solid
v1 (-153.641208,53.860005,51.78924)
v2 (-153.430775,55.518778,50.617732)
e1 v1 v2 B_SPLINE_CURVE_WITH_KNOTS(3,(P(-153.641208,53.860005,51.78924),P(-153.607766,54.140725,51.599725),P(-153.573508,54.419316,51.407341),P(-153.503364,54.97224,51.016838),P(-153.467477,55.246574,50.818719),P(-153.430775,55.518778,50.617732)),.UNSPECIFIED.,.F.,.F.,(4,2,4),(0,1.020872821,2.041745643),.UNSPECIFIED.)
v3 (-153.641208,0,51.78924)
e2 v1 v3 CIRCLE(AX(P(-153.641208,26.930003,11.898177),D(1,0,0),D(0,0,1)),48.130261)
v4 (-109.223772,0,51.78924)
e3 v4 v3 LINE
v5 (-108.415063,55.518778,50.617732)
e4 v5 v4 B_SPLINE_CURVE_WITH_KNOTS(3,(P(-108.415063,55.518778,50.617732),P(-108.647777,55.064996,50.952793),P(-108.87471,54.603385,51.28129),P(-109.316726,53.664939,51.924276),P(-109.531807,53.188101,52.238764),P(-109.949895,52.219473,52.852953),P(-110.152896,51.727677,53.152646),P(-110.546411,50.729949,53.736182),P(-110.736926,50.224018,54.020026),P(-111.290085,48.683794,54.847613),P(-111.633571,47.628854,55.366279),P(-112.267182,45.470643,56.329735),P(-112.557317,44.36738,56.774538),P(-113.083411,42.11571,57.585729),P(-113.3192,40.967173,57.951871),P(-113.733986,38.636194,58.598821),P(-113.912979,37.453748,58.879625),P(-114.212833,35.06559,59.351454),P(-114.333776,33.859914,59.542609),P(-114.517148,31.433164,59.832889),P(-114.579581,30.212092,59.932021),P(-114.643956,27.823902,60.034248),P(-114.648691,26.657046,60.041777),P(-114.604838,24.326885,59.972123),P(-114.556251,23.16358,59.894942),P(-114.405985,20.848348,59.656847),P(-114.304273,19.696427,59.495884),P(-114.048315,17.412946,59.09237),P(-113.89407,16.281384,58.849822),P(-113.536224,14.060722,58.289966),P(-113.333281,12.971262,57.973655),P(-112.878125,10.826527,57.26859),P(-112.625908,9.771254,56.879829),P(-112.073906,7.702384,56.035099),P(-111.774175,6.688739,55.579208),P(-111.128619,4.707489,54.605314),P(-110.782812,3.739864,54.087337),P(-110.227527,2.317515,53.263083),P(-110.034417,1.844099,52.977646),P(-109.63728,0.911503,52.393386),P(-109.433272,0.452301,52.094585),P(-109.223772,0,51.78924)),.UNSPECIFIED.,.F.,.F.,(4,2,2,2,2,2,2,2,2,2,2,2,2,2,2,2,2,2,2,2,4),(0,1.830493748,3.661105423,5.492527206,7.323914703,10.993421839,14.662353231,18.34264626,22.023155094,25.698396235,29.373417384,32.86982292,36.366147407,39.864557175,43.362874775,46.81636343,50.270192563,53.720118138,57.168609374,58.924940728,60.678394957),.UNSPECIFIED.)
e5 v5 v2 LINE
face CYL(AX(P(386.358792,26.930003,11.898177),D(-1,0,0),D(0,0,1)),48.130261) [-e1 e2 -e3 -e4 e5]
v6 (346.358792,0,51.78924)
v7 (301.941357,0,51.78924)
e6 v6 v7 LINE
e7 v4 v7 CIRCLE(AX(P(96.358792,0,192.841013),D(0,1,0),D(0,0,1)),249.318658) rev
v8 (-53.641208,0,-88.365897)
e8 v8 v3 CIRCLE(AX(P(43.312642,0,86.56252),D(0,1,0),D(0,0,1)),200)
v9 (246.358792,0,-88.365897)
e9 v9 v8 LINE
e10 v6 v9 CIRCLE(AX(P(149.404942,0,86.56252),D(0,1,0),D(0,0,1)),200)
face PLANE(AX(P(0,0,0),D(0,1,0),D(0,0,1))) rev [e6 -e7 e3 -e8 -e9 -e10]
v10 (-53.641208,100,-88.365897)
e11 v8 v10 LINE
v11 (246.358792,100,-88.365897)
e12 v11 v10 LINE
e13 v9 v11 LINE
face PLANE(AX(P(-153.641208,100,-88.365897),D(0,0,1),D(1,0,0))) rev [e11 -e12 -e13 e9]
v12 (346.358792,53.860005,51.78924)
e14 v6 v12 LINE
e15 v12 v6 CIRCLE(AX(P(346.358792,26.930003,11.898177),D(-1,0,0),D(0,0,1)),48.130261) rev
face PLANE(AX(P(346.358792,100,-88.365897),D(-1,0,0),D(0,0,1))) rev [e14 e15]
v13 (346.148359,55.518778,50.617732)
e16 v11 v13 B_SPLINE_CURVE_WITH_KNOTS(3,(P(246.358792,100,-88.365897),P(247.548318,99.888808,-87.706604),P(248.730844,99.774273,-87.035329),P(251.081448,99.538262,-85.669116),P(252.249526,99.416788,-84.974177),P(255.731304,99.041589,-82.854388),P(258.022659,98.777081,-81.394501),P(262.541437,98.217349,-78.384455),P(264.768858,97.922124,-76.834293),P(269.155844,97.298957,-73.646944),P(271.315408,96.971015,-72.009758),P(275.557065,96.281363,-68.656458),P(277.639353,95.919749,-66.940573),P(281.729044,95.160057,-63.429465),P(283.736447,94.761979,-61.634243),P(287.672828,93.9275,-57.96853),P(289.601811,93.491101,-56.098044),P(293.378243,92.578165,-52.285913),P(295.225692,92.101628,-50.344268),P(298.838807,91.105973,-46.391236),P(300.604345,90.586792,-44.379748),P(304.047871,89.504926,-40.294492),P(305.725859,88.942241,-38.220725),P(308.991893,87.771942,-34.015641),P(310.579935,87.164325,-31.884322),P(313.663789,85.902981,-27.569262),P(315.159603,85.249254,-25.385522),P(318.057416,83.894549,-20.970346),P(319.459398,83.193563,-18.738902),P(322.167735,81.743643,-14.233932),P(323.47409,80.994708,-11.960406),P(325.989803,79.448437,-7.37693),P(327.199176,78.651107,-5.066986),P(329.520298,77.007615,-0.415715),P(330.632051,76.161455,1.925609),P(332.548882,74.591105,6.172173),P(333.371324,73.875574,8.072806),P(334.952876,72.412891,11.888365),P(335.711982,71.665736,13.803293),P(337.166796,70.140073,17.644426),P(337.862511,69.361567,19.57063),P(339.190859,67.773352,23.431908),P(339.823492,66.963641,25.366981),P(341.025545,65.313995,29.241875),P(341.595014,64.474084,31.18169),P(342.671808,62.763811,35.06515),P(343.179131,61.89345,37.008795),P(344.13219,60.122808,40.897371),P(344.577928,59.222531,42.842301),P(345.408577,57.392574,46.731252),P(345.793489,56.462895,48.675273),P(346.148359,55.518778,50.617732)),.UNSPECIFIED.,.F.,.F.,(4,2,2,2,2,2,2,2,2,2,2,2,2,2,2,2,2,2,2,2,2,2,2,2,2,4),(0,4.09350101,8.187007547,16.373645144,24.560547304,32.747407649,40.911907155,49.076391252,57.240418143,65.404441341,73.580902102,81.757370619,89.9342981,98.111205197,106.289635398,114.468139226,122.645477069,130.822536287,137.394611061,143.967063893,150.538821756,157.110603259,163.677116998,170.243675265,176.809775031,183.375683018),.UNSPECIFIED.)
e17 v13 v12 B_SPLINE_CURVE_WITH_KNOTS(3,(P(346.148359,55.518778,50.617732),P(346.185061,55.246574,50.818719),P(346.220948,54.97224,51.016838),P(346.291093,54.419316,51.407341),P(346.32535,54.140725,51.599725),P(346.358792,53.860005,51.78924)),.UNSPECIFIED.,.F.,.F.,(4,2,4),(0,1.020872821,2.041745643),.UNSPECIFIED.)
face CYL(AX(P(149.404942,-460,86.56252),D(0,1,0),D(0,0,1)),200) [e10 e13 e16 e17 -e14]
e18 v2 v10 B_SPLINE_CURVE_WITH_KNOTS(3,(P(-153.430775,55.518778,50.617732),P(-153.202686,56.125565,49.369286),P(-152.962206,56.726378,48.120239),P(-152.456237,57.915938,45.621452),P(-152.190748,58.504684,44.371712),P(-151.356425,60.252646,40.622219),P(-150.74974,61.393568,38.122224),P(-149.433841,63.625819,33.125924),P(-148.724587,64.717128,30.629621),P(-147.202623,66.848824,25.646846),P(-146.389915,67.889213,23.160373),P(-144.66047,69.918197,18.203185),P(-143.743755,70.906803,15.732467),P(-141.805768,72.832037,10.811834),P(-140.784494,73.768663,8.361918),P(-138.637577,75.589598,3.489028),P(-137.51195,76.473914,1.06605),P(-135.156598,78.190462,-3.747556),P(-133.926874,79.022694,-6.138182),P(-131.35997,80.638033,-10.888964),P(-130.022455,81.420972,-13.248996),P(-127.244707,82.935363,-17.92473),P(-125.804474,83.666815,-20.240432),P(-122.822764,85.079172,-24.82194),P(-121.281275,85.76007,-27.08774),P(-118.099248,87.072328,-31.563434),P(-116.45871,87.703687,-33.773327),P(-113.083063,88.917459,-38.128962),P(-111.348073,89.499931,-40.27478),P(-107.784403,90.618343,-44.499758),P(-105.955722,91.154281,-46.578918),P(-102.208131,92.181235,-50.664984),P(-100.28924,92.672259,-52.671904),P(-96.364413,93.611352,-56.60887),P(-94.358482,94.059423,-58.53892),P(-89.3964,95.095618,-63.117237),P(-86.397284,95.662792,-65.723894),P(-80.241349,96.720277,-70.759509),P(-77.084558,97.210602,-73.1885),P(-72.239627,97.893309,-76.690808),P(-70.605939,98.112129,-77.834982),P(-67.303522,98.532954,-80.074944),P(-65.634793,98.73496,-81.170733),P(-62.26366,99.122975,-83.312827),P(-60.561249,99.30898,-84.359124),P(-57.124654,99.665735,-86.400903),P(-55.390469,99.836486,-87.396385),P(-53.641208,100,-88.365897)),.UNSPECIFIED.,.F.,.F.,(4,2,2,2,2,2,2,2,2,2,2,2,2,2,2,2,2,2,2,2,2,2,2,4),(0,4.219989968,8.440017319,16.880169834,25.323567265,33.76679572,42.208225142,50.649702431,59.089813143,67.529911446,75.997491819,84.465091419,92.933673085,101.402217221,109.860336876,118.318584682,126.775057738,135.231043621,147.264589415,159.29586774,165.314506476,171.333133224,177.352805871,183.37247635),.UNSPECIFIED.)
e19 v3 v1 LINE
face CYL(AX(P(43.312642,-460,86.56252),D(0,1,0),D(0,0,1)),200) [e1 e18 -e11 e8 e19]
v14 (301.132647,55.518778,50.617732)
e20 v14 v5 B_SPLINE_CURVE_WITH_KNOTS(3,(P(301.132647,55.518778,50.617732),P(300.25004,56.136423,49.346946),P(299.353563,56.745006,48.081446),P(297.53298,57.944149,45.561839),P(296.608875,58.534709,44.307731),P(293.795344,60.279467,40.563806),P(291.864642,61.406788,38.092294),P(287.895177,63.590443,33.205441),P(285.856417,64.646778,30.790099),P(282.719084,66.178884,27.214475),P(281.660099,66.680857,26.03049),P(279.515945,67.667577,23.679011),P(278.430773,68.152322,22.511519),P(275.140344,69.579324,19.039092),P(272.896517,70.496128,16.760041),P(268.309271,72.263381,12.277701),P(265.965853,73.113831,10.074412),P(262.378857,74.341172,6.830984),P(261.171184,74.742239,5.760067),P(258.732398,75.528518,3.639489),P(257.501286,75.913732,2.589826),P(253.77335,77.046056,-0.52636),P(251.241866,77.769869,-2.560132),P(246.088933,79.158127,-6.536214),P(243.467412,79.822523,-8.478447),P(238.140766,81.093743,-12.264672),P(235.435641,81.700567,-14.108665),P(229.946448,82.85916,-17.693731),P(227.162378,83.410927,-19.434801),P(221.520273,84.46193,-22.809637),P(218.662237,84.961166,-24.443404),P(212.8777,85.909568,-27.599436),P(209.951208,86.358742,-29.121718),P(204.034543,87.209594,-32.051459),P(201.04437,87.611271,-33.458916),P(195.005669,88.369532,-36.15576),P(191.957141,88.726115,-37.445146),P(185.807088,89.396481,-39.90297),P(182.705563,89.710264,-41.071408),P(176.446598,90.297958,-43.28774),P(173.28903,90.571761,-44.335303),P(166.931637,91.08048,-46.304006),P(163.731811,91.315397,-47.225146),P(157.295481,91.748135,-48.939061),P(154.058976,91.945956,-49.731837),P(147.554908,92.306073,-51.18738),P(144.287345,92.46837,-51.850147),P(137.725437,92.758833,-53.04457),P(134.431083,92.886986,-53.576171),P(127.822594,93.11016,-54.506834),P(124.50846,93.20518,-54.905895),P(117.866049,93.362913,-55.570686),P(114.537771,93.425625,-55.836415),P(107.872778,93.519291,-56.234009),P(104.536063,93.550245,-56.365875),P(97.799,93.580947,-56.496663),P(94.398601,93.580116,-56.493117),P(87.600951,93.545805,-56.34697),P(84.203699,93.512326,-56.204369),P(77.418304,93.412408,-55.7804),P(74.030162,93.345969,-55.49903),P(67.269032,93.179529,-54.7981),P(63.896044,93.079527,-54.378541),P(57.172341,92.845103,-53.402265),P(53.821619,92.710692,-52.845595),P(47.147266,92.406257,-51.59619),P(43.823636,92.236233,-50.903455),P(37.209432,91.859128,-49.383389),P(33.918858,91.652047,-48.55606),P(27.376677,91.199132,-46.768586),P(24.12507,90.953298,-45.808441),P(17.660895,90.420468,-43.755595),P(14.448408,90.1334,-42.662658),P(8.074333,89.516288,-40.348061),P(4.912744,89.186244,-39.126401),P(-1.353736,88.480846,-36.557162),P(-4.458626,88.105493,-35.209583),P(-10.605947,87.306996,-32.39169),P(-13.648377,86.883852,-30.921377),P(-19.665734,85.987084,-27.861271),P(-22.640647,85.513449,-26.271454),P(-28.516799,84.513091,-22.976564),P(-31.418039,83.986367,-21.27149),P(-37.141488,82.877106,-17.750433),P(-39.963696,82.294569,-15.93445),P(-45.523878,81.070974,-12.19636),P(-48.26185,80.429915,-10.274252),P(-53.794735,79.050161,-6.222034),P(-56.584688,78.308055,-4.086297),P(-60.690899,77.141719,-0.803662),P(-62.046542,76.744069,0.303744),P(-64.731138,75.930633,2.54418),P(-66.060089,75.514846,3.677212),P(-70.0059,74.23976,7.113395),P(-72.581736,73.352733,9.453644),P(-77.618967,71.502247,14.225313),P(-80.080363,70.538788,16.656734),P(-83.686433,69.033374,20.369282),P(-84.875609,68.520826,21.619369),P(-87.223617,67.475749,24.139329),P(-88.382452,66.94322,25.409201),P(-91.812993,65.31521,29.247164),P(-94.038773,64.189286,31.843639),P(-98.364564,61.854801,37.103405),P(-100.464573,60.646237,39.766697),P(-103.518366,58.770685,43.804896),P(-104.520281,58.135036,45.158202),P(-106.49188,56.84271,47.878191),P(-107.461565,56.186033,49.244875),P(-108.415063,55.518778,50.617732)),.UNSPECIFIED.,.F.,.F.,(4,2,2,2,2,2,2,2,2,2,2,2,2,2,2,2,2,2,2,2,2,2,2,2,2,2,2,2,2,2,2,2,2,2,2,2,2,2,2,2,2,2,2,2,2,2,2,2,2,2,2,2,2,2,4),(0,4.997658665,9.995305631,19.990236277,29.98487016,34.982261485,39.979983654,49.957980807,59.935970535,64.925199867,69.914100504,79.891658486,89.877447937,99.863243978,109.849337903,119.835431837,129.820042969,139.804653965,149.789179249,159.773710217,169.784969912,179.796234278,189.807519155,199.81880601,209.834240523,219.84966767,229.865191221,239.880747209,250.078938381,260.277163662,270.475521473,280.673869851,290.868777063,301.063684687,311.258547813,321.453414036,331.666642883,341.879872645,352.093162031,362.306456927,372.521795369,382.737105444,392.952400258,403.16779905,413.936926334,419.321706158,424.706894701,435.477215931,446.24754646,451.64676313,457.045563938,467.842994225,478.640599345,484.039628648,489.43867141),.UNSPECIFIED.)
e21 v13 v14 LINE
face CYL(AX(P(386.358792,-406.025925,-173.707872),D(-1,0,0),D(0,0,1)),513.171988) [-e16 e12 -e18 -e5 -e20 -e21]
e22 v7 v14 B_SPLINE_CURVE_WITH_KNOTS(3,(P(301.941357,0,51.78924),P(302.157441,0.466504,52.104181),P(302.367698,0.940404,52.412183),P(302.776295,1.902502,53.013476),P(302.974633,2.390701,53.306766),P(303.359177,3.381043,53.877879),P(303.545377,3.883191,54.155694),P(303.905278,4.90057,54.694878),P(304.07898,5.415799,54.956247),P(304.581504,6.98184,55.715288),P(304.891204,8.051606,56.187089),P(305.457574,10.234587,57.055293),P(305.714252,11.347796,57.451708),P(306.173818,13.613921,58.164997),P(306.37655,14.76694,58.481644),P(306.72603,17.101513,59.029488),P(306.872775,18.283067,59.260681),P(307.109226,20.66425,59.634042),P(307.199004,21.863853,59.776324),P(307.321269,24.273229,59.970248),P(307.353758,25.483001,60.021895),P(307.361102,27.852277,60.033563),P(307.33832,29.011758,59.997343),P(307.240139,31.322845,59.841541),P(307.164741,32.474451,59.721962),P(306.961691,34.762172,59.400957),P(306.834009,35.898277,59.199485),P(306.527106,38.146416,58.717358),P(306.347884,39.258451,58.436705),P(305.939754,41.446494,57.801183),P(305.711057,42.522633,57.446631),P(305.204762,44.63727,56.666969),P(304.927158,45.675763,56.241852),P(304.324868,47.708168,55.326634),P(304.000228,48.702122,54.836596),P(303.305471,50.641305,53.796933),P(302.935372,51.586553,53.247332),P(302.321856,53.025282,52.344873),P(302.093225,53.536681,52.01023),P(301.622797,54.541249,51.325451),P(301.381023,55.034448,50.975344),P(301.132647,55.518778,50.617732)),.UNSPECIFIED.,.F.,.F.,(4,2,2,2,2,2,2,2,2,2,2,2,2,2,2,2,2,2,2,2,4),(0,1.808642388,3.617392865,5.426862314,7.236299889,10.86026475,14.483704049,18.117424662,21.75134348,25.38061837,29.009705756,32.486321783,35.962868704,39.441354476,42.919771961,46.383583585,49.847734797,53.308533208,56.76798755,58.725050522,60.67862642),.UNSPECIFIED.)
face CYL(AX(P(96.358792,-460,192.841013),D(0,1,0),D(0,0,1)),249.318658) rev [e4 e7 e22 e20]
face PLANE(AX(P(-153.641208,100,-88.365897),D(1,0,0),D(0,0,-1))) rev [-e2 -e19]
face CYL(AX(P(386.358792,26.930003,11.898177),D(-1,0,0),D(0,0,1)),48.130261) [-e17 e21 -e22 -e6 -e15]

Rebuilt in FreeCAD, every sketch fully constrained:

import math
import FreeCAD as App
import Part
import Sketcher


def add_polygon(sketch, points):
    """Adds a closed chain of lines whose ends are joined by coincident constraints."""
    first, n = sketch.GeometryCount, len(points)
    for a, b in zip(points, points[1:] + points[:1]):
        sketch.addGeometry(Part.LineSegment(App.Vector(*a, 0), App.Vector(*b, 0)), False)
    for i in range(n):
        sketch.addConstraint(Sketcher.Constraint("Coincident", first + i, 2, first + (i + 1) % n, 1))

doc = App.newDocument("Part")
params = doc.addObject("Spreadsheet::Sheet", "Params")
for row, (alias, value) in enumerate([
    ("sketch1_width", "500 mm"),
    ("sketch1_height", "150 mm"),
    ("pad1_length", "100 mm"),
    ("sketch2_width", "100 mm"),
    ("sketch2_height", "150 mm"),
    ("pocket1_length", "540 mm"),
    ("pocket2_length", "560 mm"),
    ("sketch4_radius", "200 mm"),
    ("sketch4_width", "100 mm"),
    ("pocket3_length", "560 mm"),
], start=1):
    params.set(f"A{row}", alias)
    params.set(f"B{row}", "=" + value)
    params.setAlias(f"B{row}", alias)

body = doc.addObject("PartDesign::Body", "Body")

# Sketch on XZ plane
sketch1 = body.newObject("Sketcher::SketchObject", "Sketch")
sketch1.AttachmentSupport = (doc.getObject("XZ_Plane"), [""])
sketch1.MapMode = "FlatFace"
add_polygon(sketch1, [(-154, -88), (-154, 62), (346, 62), (346, -88)])  # lines 0-3
sketch1.addConstraint(Sketcher.Constraint("Vertical", 0))
sketch1.addConstraint(Sketcher.Constraint("Horizontal", 1))
sketch1.addConstraint(Sketcher.Constraint("Vertical", 2))
sketch1.addConstraint(Sketcher.Constraint("Horizontal", 3))
sketch1.addConstraint(Sketcher.Constraint("DistanceX", 1, 1, 1, 2, 500.0))
sketch1.addConstraint(Sketcher.Constraint("DistanceY", 0, 1, 0, 2, 150.0))
sketch1.addConstraint(Sketcher.Constraint("DistanceX", 0, 2, -1, 1, 153.641208))
sketch1.addConstraint(Sketcher.Constraint("DistanceY", -1, 1, 0, 2, 61.634103))
sketch1.setExpression("Constraints[8]", "Params.sketch1_width")
sketch1.setExpression("Constraints[9]", "Params.sketch1_height")
pad1 = body.newObject("PartDesign::Pad", "Pad")
pad1.Profile = sketch1
pad1.setExpression("Length", "Params.pad1_length")
pad1.Reversed = True

# Sketch on YZ plane
sketch2 = body.newObject("Sketcher::SketchObject", "Sketch001")
sketch2.AttachmentSupport = (doc.getObject("YZ_Plane"), [""])
sketch2.MapMode = "FlatFace"
sketch2.AttachmentOffset = App.Placement(App.Vector(0, 0, -153.641208), App.Rotation())
sketch2.addGeometry(Part.LineSegment(App.Vector(100, 62, 0), App.Vector(100, -88, 0)), False)
sketch2.addGeometry(Part.ArcOfCircle(Part.Circle(App.Vector(-406, -174, 0), App.Vector(0, 0, 1), 513), math.radians(9.57), math.radians(25.92)), False)
sketch2.addGeometry(Part.ArcOfCircle(Part.Circle(App.Vector(27, 12, 0), App.Vector(0, 0, 1), 48), math.radians(54), math.radians(124)), False)
sketch2.addGeometry(Part.LineSegment(App.Vector(0, 52, 0), App.Vector(0, 62, 0)), False)
sketch2.addGeometry(Part.LineSegment(App.Vector(0, 62, 0), App.Vector(100, 62, 0)), False)
sketch2.addConstraint(Sketcher.Constraint("Coincident", 0, 2, 1, 1))
sketch2.addConstraint(Sketcher.Constraint("Coincident", 1, 2, 2, 1))
sketch2.addConstraint(Sketcher.Constraint("Coincident", 2, 2, 3, 1))
sketch2.addConstraint(Sketcher.Constraint("Coincident", 3, 2, 4, 1))
sketch2.addConstraint(Sketcher.Constraint("Coincident", 4, 2, 0, 1))
sketch2.addConstraint(Sketcher.Constraint("Vertical", 0))
sketch2.addConstraint(Sketcher.Constraint("Vertical", 3))
sketch2.addConstraint(Sketcher.Constraint("Horizontal", 4))
sketch2.addConstraint(Sketcher.Constraint("PointOnObject", 2, 2, -2))
sketch2.addConstraint(Sketcher.Constraint("DistanceX", 4, 1, 4, 2, 100.0))
sketch2.addConstraint(Sketcher.Constraint("DistanceY", 0, 2, 0, 1, 150.0))
sketch2.addConstraint(Sketcher.Constraint("Radius", 1, 513.171988))
sketch2.addConstraint(Sketcher.Constraint("Radius", 2, 48.130261))
sketch2.addConstraint(Sketcher.Constraint("DistanceY", 3, 1, 3, 2, 9.844863))
sketch2.addConstraint(Sketcher.Constraint("DistanceY", 1, 3, -1, 1, 173.707872))
sketch2.addConstraint(Sketcher.Constraint("DistanceX", -1, 1, 1, 2, 55.518778))
sketch2.addConstraint(Sketcher.Constraint("DistanceY", -1, 1, 2, 2, 51.78924))
sketch2.setExpression("Constraints[9]", "Params.sketch2_width")
sketch2.setExpression("Constraints[10]", "Params.sketch2_height")
pocket1 = body.newObject("PartDesign::Pocket", "Pocket")
pocket1.Profile = sketch2
pocket1.setExpression("Length", "Params.pocket1_length")
pocket1.Reversed = True

# Sketch on XZ plane
sketch3 = body.newObject("Sketcher::SketchObject", "Sketch002")
sketch3.AttachmentSupport = (doc.getObject("XZ_Plane"), [""])
sketch3.MapMode = "FlatFace"
sketch3.AttachmentOffset = App.Placement(App.Vector(0, 0, -100), App.Rotation())
sketch3.addGeometry(Part.Circle(App.Vector(96, 193, 0), App.Vector(0, 0, 1), 249), False)
sketch3.addConstraint(Sketcher.Constraint("Diameter", 0, 498.637317))
sketch3.addConstraint(Sketcher.Constraint("DistanceX", -1, 1, 0, 3, 96.358792))
sketch3.addConstraint(Sketcher.Constraint("DistanceY", -1, 1, 0, 3, 192.841013))
pocket2 = body.newObject("PartDesign::Pocket", "Pocket001")
pocket2.Profile = sketch3
pocket2.setExpression("Length", "Params.pocket2_length")
pocket2.Reversed = True

# Sketch on XZ plane
sketch4 = body.newObject("Sketcher::SketchObject", "Sketch003")
sketch4.AttachmentSupport = (doc.getObject("XZ_Plane"), [""])
sketch4.MapMode = "FlatFace"
sketch4.AttachmentOffset = App.Placement(App.Vector(0, 0, -100), App.Rotation())
sketch4.addGeometry(Part.LineSegment(App.Vector(246, -88, 0), App.Vector(346, -88, 0)), False)
sketch4.addGeometry(Part.LineSegment(App.Vector(346, -88, 0), App.Vector(346, 52, 0)), False)
sketch4.addGeometry(Part.ArcOfCircle(Part.Circle(App.Vector(149, 87, 0), App.Vector(0, 0, 1), 200), math.radians(-61), math.radians(-10)), False)
sketch4.addGeometry(Part.LineSegment(App.Vector(-154, -88, 0), App.Vector(-54, -88, 0)), False)
sketch4.addGeometry(Part.ArcOfCircle(Part.Circle(App.Vector(43, 87, 0), App.Vector(0, 0, 1), 200), math.radians(-170), math.radians(-119)), False)
sketch4.addGeometry(Part.LineSegment(App.Vector(-154, 52, 0), App.Vector(-154, -88, 0)), False)
sketch4.addConstraint(Sketcher.Constraint("Coincident", 0, 2, 1, 1))
sketch4.addConstraint(Sketcher.Constraint("Coincident", 1, 2, 2, 2))
sketch4.addConstraint(Sketcher.Constraint("Coincident", 2, 1, 0, 1))
sketch4.addConstraint(Sketcher.Constraint("Coincident", 3, 2, 4, 2))
sketch4.addConstraint(Sketcher.Constraint("Coincident", 4, 1, 5, 1))
sketch4.addConstraint(Sketcher.Constraint("Coincident", 5, 2, 3, 1))
sketch4.addConstraint(Sketcher.Constraint("Horizontal", 0))
sketch4.addConstraint(Sketcher.Constraint("Vertical", 1))
sketch4.addConstraint(Sketcher.Constraint("Horizontal", 3))
sketch4.addConstraint(Sketcher.Constraint("Vertical", 5))
sketch4.addConstraint(Sketcher.Constraint("Equal", 2, 4))
sketch4.addConstraint(Sketcher.Constraint("Horizontal", 2, 3, 4, 3))
sketch4.addConstraint(Sketcher.Constraint("Horizontal", 2, 1, 3, 2))
sketch4.addConstraint(Sketcher.Constraint("Horizontal", 1, 2, 4, 1))
sketch4.addConstraint(Sketcher.Constraint("Radius", 2, 200.0))
sketch4.addConstraint(Sketcher.Constraint("DistanceX", 0, 1, 0, 2, 100.0))
sketch4.addConstraint(Sketcher.Constraint("DistanceX", 3, 2, 2, 1, 300.0))
sketch4.addConstraint(Sketcher.Constraint("DistanceX", 4, 3, 2, 3, 106.0923))
sketch4.addConstraint(Sketcher.Constraint("DistanceY", -1, 1, 2, 3, 86.56252))
sketch4.addConstraint(Sketcher.Constraint("DistanceX", -1, 1, 2, 3, 149.404942))
sketch4.setExpression("Constraints[14]", "Params.sketch4_radius")
sketch4.setExpression("Constraints[15]", "Params.sketch4_width")
pocket3 = body.newObject("PartDesign::Pocket", "Pocket002")
pocket3.Profile = sketch4
pocket3.setExpression("Length", "Params.pocket3_length")
pocket3.Reversed = True

doc.recompute()
